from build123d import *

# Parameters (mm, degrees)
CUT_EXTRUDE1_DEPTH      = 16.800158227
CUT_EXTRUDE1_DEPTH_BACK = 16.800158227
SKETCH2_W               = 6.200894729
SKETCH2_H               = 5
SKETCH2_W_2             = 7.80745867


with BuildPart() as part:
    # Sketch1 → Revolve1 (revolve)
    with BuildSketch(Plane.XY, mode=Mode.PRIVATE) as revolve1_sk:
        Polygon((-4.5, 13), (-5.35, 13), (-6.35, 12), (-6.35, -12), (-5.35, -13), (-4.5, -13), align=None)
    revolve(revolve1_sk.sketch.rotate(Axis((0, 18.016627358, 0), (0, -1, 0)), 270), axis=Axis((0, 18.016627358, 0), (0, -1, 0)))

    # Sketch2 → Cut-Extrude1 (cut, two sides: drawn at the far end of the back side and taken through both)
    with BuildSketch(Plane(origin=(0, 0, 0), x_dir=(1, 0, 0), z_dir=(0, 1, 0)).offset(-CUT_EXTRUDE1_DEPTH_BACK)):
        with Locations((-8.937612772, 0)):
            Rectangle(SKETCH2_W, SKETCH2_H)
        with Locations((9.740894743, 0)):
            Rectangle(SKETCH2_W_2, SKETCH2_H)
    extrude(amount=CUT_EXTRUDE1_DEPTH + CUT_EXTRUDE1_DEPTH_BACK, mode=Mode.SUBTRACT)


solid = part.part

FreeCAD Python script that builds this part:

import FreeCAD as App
import Part
import Sketcher

V = App.Vector


def add_polygon(sketch, points):
    """Adds a closed chain of lines whose ends are joined by coincident constraints."""
    first, n = sketch.GeometryCount, len(points)
    for a, b in zip(points, points[1:] + points[:1]):
        sketch.addGeometry(Part.LineSegment(App.Vector(*a, 0), App.Vector(*b, 0)), False)
    for i in range(n):
        sketch.addConstraint(Sketcher.Constraint("Coincident", first + i, 2, first + (i + 1) % n, 1))

doc = App.newDocument("Part")
params = doc.addObject("Spreadsheet::Sheet", "Params")
for row, (alias, value) in enumerate([
    ("sketch1_height", "24 mm"),
    ("sketch1_height2", "26 mm"),
    ("sketch1_width", "0.85 mm"),
    ("revolution_angle", "360 deg"),
    ("sketch2_height", "5 mm"),
], start=1):
    params.set(f"A{row}", alias)
    params.set(f"B{row}", "=" + value)
    params.setAlias(f"B{row}", alias)

body = doc.addObject("PartDesign::Body", "Body")

sketch1 = doc.addObject("Sketcher::SketchObject", "Sketch")
body.addObject(sketch1)
sketch1.AttachmentSupport = (doc.XY_Plane, [""])
sketch1.MapMode = "FlatFace"
add_polygon(sketch1, [(-4.5, 13), (-5.3, 13), (-6.3, 12), (-6.3, -12), (-5.3, -13), (-4.5, -13)])
sketch1.addConstraint([
    Sketcher.Constraint("Horizontal", 0),
    Sketcher.Constraint("Vertical", 2),
    Sketcher.Constraint("Horizontal", 4),
    Sketcher.Constraint("Vertical", 5),
    Sketcher.Constraint("Symmetric", 0, 2, 3, 2, -1),
    Sketcher.Constraint("Perpendicular", 1, 3),
    Sketcher.Constraint("Equal", 1, 3),
    Sketcher.Constraint("DistanceY", 2, 2, 2, 1, 24.0),
    Sketcher.Constraint("DistanceY", 5, 1, 5, 2, 26.0),
    Sketcher.Constraint("DistanceX", 0, 2, 0, 1, 0.85),
    Sketcher.Constraint("DistanceX", 4, 2, -1, 1, 4.5),
])
sketch1.setExpression("Constraints[13]", "Params.sketch1_height")
sketch1.setExpression("Constraints[14]", "Params.sketch1_height2")
sketch1.setExpression("Constraints[15]", "Params.sketch1_width")
revolution = doc.addObject("PartDesign::Revolution", "Revolution")
body.addObject(revolution)
revolution.Profile = sketch1
revolution.ReferenceAxis = (sketch1, ["V_Axis"])
revolution.setExpression("Angle", "Params.revolution_angle")

sketch2 = doc.addObject("Sketcher::SketchObject", "Sketch001")
body.addObject(sketch2)
sketch2.AttachmentSupport = (doc.XZ_Plane, [""])
sketch2.MapMode = "FlatFace"
add_polygon(sketch2, [(-12, -2), (-12, 2), (-6, 2), (-6, -2)])
add_polygon(sketch2, [(6, -2), (6, 2), (14, 2), (14, -2)])
sketch2.addConstraint([
    Sketcher.Constraint("Vertical", 0),
    Sketcher.Constraint("Horizontal", 1),
    Sketcher.Constraint("Vertical", 2),
    Sketcher.Constraint("Horizontal", 3),
    Sketcher.Constraint("Vertical", 4),
    Sketcher.Constraint("Horizontal", 5),
    Sketcher.Constraint("Vertical", 6),
    Sketcher.Constraint("Horizontal", 7),
    Sketcher.Constraint("Symmetric", 2, 2, 4, 2, -1, 1),
    Sketcher.Constraint("Horizontal", 1, 2, 4, 2),
    Sketcher.Constraint("Horizontal", 3, 2, 6, 2),
    Sketcher.Constraint("DistanceY", 0, 1, 0, 2, 5.0),
    Sketcher.Constraint("DistanceX", 5, 1, 5, 2, 7.807459),
    Sketcher.Constraint("DistanceX", 1, 1, 1, 2, 6.200895),
    Sketcher.Constraint("DistanceX", 0, 2, -1, 1, 12.03806),
])
sketch2.setExpression("Constraints[19]", "Params.sketch2_height")
pocket1 = doc.addObject("PartDesign::Pocket", "Pocket")
body.addObject(pocket1)
pocket1.Profile = sketch2
pocket1.Type = "ThroughAll"
pocket1.Midplane = True

doc.recompute()
